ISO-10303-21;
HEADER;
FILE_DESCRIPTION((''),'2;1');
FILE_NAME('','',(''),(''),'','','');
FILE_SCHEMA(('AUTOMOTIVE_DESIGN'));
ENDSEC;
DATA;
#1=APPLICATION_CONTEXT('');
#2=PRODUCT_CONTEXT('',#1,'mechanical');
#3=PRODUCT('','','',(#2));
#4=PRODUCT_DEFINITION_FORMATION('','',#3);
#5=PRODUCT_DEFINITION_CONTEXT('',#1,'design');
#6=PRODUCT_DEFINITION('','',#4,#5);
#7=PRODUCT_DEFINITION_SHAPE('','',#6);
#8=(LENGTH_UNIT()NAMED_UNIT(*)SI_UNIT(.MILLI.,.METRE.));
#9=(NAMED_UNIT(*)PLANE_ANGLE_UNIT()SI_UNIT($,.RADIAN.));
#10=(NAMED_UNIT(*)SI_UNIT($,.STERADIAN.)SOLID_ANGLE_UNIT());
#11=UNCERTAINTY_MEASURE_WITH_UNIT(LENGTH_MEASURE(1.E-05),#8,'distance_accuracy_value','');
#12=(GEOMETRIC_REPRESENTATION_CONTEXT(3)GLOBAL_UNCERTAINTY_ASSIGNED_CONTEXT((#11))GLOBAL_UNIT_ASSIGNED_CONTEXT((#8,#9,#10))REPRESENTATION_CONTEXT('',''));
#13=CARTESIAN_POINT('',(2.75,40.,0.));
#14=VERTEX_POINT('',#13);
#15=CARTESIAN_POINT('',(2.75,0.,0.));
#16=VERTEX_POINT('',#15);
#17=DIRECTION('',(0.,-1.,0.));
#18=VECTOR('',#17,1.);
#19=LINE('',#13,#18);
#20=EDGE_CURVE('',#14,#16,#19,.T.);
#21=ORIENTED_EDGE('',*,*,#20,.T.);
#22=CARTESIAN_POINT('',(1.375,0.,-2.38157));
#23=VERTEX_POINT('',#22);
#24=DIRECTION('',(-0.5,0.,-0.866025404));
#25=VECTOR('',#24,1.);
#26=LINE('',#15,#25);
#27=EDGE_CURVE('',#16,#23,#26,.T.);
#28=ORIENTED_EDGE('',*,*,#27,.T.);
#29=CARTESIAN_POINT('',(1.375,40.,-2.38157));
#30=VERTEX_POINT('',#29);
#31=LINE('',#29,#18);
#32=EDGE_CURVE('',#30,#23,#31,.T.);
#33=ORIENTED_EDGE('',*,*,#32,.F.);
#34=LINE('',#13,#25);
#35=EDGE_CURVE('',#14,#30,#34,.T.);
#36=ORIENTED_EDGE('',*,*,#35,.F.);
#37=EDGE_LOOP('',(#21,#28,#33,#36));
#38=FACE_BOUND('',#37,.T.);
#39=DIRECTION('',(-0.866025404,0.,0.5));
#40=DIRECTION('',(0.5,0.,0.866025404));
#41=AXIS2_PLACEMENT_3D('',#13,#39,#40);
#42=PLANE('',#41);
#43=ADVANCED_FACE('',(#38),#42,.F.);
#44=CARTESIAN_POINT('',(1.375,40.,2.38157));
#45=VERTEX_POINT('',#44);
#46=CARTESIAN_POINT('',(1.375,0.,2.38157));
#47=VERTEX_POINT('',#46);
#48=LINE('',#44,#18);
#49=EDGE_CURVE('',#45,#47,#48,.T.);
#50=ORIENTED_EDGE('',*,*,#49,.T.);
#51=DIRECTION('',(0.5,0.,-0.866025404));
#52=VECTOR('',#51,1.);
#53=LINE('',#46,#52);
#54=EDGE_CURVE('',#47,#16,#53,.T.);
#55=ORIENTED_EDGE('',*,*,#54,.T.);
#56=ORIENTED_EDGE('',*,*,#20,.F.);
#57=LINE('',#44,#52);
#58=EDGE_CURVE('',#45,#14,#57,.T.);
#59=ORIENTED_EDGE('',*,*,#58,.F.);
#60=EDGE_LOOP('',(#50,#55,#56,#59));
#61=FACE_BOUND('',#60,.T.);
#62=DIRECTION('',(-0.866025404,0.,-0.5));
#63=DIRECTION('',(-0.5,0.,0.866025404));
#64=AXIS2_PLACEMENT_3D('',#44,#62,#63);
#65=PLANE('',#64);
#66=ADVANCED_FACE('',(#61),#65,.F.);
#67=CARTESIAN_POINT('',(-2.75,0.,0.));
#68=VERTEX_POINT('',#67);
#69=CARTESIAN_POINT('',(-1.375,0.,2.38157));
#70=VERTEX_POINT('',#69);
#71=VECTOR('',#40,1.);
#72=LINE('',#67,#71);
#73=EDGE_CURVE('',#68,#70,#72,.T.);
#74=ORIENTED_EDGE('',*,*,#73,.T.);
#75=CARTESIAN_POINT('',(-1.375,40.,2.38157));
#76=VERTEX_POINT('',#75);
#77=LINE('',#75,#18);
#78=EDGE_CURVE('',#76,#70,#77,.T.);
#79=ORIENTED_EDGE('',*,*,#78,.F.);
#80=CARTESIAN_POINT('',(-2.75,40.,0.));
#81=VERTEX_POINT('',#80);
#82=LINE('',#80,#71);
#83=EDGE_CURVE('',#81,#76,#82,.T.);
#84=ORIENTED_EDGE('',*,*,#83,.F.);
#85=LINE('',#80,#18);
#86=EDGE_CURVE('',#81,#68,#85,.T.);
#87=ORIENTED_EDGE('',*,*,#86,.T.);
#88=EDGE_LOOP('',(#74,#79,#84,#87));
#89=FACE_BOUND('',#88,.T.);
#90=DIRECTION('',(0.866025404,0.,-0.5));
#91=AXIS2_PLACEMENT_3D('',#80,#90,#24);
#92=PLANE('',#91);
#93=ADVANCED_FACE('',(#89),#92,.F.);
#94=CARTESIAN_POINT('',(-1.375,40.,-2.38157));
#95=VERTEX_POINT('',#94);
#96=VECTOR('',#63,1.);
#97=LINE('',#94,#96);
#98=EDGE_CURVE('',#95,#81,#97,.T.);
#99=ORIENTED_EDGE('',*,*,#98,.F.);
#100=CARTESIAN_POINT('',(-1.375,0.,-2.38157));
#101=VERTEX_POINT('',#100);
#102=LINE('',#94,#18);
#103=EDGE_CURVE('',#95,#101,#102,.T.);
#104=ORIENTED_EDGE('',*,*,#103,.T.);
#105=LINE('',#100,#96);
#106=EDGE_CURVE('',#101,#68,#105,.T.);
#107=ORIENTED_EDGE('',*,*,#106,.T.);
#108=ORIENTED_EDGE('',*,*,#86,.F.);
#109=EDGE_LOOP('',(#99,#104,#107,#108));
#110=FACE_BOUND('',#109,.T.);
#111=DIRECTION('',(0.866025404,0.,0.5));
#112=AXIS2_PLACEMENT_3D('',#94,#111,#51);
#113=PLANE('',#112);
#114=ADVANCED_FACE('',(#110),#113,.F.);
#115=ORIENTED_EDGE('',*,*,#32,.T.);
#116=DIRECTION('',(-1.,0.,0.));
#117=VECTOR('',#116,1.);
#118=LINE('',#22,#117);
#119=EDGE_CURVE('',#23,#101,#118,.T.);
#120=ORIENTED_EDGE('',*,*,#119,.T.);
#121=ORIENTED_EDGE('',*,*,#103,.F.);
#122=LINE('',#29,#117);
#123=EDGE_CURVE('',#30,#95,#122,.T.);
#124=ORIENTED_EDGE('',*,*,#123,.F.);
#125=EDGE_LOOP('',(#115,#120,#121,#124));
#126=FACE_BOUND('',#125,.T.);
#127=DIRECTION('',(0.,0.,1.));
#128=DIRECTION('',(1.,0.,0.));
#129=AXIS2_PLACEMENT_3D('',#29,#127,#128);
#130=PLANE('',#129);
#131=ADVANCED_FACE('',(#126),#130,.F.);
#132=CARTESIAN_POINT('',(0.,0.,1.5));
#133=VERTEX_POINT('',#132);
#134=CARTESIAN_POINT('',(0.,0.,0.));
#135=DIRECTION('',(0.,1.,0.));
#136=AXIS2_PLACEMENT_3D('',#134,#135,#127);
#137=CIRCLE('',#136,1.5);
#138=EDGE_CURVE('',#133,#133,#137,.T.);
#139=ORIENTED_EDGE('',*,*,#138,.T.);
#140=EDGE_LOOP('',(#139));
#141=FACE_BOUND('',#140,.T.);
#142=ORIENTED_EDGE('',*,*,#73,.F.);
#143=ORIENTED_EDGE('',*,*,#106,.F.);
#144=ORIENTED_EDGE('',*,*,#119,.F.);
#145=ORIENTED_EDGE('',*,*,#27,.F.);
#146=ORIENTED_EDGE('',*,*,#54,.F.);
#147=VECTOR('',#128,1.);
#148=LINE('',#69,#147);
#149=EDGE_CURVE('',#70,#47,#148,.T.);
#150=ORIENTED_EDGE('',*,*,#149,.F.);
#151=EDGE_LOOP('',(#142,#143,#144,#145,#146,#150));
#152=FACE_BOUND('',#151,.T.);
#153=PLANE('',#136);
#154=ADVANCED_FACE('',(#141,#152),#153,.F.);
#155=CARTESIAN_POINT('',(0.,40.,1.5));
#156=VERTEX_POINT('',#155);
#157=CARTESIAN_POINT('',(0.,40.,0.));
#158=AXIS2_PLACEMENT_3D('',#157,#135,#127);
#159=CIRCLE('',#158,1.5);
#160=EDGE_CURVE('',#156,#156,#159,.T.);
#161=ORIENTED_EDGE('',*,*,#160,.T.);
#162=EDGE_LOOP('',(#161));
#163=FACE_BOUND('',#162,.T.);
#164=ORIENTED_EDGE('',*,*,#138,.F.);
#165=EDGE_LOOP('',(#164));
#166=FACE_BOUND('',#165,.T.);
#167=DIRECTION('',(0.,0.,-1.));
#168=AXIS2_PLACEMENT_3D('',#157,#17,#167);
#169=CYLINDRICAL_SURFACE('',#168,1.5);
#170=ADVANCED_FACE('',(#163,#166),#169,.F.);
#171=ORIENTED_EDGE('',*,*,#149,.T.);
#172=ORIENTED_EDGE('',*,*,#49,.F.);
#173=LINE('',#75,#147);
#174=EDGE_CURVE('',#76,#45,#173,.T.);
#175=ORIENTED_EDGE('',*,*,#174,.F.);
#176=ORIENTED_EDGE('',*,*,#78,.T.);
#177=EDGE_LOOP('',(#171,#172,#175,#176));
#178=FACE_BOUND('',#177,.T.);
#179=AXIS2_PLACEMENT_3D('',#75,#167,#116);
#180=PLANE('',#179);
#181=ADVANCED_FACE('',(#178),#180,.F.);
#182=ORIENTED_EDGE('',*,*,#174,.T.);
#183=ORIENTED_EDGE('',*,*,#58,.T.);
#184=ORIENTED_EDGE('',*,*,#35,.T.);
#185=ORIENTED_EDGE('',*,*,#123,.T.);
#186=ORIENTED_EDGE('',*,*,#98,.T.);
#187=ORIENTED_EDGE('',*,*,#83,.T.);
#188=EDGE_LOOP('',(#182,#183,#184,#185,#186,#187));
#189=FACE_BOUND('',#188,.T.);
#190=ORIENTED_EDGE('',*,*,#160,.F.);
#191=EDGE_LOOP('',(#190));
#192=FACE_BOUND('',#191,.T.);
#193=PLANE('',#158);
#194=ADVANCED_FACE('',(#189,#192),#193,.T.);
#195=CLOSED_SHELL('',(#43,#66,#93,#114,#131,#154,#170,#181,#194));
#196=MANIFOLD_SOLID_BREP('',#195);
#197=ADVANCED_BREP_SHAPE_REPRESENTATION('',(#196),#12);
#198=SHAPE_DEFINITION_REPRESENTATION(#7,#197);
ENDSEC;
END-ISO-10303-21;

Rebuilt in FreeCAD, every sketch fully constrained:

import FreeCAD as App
import Part
import Sketcher

V = App.Vector
Q = App.Units.Quantity

doc = App.newDocument("Part")
body = doc.addObject("PartDesign::Body", "Body")

# Sketch on XZ plane
sketch1 = body.newObject("Sketcher::SketchObject", "Sketch")
sketch1.AttachmentSupport = (doc.getObject("XZ_Plane"), [""])
sketch1.MapMode = "FlatFace"
sketch1.addGeometry(Part.LineSegment(V(2.75, 0, 0), V(1.375, -2.38157, 0)), False)
sketch1.addGeometry(Part.LineSegment(V(1.375, -2.38157, 0), V(-1.375, -2.38157, 0)), False)
sketch1.addGeometry(Part.LineSegment(V(-1.375, -2.38157, 0), V(-2.75, 0, 0)), False)
sketch1.addGeometry(Part.LineSegment(V(-2.75, 0, 0), V(-1.375, 2.38157, 0)), False)
sketch1.addGeometry(Part.LineSegment(V(-1.375, 2.38157, 0), V(1.375, 2.38157, 0)), False)
sketch1.addGeometry(Part.LineSegment(V(1.375, 2.38157, 0), V(2.75, 0, 0)), False)
sketch1.addGeometry(Part.Circle(V(0, 0, 0), V(0, 0, 1), 1.5), False)
sketch1.addConstraint(Sketcher.Constraint("Coincident", 0, 2, 1, 1))
sketch1.addConstraint(Sketcher.Constraint("Coincident", 1, 2, 2, 1))
sketch1.addConstraint(Sketcher.Constraint("Coincident", 2, 2, 3, 1))
sketch1.addConstraint(Sketcher.Constraint("Coincident", 3, 2, 4, 1))
sketch1.addConstraint(Sketcher.Constraint("Coincident", 4, 2, 5, 1))
sketch1.addConstraint(Sketcher.Constraint("Coincident", 5, 2, 0, 1))
sketch1.addConstraint(Sketcher.Constraint("Horizontal", 1))
sketch1.addConstraint(Sketcher.Constraint("Horizontal", 4))
sketch1.addConstraint(Sketcher.Constraint("Coincident", 6, 3, -1, 1))
sketch1.addConstraint(Sketcher.Constraint("Symmetric", 0, 2, 3, 2, -1, 1))
sketch1.addConstraint(Sketcher.Constraint("Symmetric", 2, 2, 5, 2, -1, 1))
sketch1.addConstraint(Sketcher.Constraint("PointOnObject", 2, 2, -1))
sketch1.addConstraint(Sketcher.Constraint("Parallel", 2, 5))
sketch1.addConstraint(Sketcher.Constraint("Vertical", 1, 2, 3, 2))
sketch1.addConstraint(Sketcher.Constraint("Diameter", 6, Q("3 mm")))
sketch1.addConstraint(Sketcher.Constraint("Angle", 0, Q("-120 deg")))
sketch1.addConstraint(Sketcher.Constraint("DistanceX", 1, 2, 1, 1, Q("2.75 mm")))
sketch1.addConstraint(Sketcher.Constraint("Distance", 0, Q("2.75 mm")))
pad1 = body.newObject("PartDesign::Pad", "Pad")
pad1.Profile = sketch1
pad1.Length = 40
pad1.Reversed = True

doc.recompute()
